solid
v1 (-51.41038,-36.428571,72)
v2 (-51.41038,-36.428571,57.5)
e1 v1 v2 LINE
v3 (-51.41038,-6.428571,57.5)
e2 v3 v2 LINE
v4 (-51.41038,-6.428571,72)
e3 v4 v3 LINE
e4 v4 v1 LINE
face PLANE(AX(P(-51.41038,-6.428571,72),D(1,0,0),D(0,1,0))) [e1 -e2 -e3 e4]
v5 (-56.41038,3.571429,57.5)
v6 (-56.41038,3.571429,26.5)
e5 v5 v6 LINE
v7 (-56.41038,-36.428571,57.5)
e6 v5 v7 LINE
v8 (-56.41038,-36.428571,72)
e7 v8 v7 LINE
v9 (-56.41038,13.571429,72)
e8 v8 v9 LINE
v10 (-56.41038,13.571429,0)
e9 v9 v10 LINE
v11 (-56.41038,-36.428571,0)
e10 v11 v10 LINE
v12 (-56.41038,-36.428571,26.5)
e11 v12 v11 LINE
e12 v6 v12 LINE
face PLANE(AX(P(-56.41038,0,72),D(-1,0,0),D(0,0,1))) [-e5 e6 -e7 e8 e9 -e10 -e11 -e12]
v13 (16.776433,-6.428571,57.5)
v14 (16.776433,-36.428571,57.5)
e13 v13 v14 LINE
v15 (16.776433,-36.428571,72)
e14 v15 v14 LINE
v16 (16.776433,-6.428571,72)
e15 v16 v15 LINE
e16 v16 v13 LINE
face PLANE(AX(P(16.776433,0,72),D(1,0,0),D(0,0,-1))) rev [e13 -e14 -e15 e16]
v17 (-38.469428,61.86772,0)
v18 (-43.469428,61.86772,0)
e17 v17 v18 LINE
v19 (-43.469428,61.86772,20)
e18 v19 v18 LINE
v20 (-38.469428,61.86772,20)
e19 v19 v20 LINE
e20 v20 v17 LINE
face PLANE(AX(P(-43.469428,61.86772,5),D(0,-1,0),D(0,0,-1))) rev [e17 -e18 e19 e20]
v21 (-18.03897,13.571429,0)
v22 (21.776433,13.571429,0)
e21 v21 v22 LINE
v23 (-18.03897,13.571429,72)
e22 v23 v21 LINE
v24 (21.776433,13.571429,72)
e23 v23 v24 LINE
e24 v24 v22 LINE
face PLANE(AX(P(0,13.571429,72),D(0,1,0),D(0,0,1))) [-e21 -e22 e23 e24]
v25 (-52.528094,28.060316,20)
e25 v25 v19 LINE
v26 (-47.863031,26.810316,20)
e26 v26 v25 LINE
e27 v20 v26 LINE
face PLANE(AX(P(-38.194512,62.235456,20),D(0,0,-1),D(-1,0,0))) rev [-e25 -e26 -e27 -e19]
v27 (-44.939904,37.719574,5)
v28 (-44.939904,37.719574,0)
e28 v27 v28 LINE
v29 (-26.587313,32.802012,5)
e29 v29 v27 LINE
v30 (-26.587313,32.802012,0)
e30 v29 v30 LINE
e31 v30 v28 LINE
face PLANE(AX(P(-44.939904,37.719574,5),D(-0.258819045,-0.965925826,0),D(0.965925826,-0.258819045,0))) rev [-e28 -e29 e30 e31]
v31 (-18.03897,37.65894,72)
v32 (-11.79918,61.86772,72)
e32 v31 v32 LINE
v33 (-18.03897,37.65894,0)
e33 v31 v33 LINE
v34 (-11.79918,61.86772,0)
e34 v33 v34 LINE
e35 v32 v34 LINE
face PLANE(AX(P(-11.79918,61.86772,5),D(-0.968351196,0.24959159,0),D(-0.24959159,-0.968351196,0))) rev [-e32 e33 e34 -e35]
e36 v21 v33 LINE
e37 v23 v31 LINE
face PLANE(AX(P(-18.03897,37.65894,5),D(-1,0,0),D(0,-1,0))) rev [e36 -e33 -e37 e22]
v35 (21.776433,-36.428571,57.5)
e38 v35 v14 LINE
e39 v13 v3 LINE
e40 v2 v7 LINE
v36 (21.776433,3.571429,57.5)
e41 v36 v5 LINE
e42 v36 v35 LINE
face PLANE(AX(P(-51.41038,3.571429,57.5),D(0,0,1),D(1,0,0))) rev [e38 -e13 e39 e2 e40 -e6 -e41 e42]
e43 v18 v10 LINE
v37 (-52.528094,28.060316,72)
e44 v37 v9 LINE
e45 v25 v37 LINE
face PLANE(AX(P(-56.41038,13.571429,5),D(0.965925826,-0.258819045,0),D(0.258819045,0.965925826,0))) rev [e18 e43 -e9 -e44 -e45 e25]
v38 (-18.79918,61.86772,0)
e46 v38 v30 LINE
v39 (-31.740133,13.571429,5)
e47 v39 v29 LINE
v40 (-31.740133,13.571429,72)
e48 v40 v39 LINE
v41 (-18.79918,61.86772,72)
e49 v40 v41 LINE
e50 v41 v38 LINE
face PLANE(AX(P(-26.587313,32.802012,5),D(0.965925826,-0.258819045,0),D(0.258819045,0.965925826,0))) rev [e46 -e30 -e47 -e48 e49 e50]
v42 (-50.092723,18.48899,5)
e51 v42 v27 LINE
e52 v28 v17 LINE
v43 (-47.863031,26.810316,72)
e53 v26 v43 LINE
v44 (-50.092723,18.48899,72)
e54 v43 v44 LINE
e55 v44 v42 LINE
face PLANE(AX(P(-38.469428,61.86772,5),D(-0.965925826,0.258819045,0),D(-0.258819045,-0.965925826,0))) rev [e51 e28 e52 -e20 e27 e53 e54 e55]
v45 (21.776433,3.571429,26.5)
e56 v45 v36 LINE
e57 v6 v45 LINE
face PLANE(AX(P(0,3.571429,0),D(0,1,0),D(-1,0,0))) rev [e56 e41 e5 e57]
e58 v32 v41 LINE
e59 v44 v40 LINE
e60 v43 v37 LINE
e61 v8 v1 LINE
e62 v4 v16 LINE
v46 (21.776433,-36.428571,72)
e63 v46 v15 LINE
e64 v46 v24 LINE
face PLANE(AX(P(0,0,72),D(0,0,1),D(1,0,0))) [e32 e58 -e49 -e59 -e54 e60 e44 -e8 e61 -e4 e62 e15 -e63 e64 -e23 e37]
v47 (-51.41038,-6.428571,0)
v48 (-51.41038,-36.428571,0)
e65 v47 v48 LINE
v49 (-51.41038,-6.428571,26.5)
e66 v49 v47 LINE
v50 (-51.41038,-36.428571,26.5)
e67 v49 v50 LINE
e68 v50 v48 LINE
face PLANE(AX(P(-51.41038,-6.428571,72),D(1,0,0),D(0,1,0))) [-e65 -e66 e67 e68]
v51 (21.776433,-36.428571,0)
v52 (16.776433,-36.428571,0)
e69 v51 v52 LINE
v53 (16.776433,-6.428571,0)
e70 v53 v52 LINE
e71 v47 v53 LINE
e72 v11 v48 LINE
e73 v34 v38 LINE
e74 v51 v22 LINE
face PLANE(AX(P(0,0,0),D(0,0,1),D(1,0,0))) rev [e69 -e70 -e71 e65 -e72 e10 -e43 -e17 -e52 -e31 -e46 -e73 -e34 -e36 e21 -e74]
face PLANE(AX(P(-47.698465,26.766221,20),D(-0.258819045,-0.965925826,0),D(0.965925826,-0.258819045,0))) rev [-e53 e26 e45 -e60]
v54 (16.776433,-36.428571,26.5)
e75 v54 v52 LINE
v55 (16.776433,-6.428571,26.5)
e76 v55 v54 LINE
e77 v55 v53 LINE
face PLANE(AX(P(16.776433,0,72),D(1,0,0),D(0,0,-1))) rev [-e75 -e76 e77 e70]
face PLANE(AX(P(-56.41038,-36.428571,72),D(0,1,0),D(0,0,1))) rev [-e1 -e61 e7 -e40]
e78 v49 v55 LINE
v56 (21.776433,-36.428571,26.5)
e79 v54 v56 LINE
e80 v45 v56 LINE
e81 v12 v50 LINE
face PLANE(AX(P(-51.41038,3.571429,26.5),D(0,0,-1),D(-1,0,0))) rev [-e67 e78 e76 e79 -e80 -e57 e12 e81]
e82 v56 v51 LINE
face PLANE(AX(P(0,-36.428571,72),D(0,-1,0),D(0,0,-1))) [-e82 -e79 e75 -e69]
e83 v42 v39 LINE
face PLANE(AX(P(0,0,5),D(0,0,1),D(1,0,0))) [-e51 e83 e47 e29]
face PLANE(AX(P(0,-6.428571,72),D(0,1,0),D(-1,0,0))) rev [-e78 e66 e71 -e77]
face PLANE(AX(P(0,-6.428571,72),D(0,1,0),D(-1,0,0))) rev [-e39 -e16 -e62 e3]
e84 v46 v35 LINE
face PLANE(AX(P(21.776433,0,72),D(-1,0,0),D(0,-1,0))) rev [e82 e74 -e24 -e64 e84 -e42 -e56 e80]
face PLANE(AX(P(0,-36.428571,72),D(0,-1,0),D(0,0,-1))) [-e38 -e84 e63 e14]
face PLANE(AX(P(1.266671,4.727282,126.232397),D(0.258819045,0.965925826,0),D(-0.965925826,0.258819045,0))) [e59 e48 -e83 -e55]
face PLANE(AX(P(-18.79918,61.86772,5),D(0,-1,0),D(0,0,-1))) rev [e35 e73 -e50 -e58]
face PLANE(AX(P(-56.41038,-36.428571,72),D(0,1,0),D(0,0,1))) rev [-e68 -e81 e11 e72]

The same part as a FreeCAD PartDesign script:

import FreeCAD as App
import Part
import Sketcher
from FreeCAD import Vector
Q = App.Units.Quantity

doc = App.newDocument("Part")
body = doc.addObject("PartDesign::Body", "Body")

# Sketch on XY plane
sketch1 = doc.addObject("Sketcher::SketchObject", "Sketch")
body.addObject(sketch1)
sketch1.AttachmentSupport = (doc.XY_Plane, [""])
sketch1.MapMode = "FlatFace"
sketch1.addGeometry(Part.LineSegment(Vector(-56, 14, 0), Vector(-56, -36, 0)), False)
sketch1.addGeometry(Part.LineSegment(Vector(-56, -36, 0), Vector(-51, -36, 0)), False)
sketch1.addGeometry(Part.LineSegment(Vector(-51, -36, 0), Vector(-51, -6, 0)), False)
sketch1.addGeometry(Part.LineSegment(Vector(-51, -6, 0), Vector(17, -6, 0)), False)
sketch1.addGeometry(Part.LineSegment(Vector(17, -6, 0), Vector(17, -36, 0)), False)
sketch1.addGeometry(Part.LineSegment(Vector(17, -36, 0), Vector(22, -36, 0)), False)
sketch1.addGeometry(Part.LineSegment(Vector(22, -36, 0), Vector(22, 14, 0)), False)
sketch1.addGeometry(Part.LineSegment(Vector(22, 14, 0), Vector(-56, 14, 0)), False)
sketch1.addConstraint(Sketcher.Constraint("Coincident", 0, 2, 1, 1))
sketch1.addConstraint(Sketcher.Constraint("Coincident", 1, 2, 2, 1))
sketch1.addConstraint(Sketcher.Constraint("Coincident", 2, 2, 3, 1))
sketch1.addConstraint(Sketcher.Constraint("Coincident", 3, 2, 4, 1))
sketch1.addConstraint(Sketcher.Constraint("Coincident", 4, 2, 5, 1))
sketch1.addConstraint(Sketcher.Constraint("Coincident", 5, 2, 6, 1))
sketch1.addConstraint(Sketcher.Constraint("Coincident", 6, 2, 7, 1))
sketch1.addConstraint(Sketcher.Constraint("Coincident", 7, 2, 0, 1))
sketch1.addConstraint(Sketcher.Constraint("Vertical", 0))
sketch1.addConstraint(Sketcher.Constraint("Horizontal", 1))
sketch1.addConstraint(Sketcher.Constraint("Vertical", 2))
sketch1.addConstraint(Sketcher.Constraint("Horizontal", 3))
sketch1.addConstraint(Sketcher.Constraint("Vertical", 4))
sketch1.addConstraint(Sketcher.Constraint("Horizontal", 5))
sketch1.addConstraint(Sketcher.Constraint("Vertical", 6))
sketch1.addConstraint(Sketcher.Constraint("Horizontal", 7))
sketch1.addConstraint(Sketcher.Constraint("Horizontal", 1, 2, 4, 2))
sketch1.addConstraint(Sketcher.Constraint("Equal", 1, 5))
sketch1.addConstraint(Sketcher.Constraint("DistanceX", 1, 1, 1, 2, Q("5 mm")))
sketch1.addConstraint(Sketcher.Constraint("DistanceY", 0, 2, 0, 1, Q("50 mm")))
sketch1.addConstraint(Sketcher.Constraint("DistanceY", 2, 1, 2, 2, Q("30 mm")))
sketch1.addConstraint(Sketcher.Constraint("DistanceX", 3, 1, 3, 2, Q("68.186813 mm")))
sketch1.addConstraint(Sketcher.Constraint("DistanceX", 0, 2, -1, 1, Q("56.41038 mm")))
sketch1.addConstraint(Sketcher.Constraint("DistanceY", 0, 2, -1, 1, Q("36.428571 mm")))
pad1 = doc.addObject("PartDesign::Pad", "Pad")
body.addObject(pad1)
pad1.Profile = sketch1
pad1.Length = 72

# Sketch on XZ plane
sketch2 = doc.addObject("Sketcher::SketchObject", "Sketch001")
body.addObject(sketch2)
sketch2.AttachmentSupport = (doc.XZ_Plane, [""])
sketch2.MapMode = "FlatFace"
sketch2.AttachmentOffset = App.Placement(Vector(0, 0, 6.428571), App.Rotation())
sketch2.addGeometry(Part.LineSegment(Vector(-51, 58, 0), Vector(-51, 26, 0)), False)
sketch2.addGeometry(Part.LineSegment(Vector(-51, 26, 0), Vector(17, 26, 0)), False)
sketch2.addGeometry(Part.LineSegment(Vector(17, 26, 0), Vector(17, 58, 0)), False)
sketch2.addGeometry(Part.LineSegment(Vector(17, 58, 0), Vector(-51, 58, 0)), False)
sketch2.addConstraint(Sketcher.Constraint("Coincident", 0, 2, 1, 1))
sketch2.addConstraint(Sketcher.Constraint("Coincident", 1, 2, 2, 1))
sketch2.addConstraint(Sketcher.Constraint("Coincident", 2, 2, 3, 1))
sketch2.addConstraint(Sketcher.Constraint("Coincident", 3, 2, 0, 1))
sketch2.addConstraint(Sketcher.Constraint("Vertical", 0))
sketch2.addConstraint(Sketcher.Constraint("Horizontal", 1))
sketch2.addConstraint(Sketcher.Constraint("Vertical", 2))
sketch2.addConstraint(Sketcher.Constraint("Horizontal", 3))
sketch2.addConstraint(Sketcher.Constraint("DistanceY", 0, 2, 0, 1, Q("31 mm")))
sketch2.addConstraint(Sketcher.Constraint("DistanceY", -1, 1, 0, 2, Q("26.5 mm")))
sketch2.addConstraint(Sketcher.Constraint("DistanceX", 1, 1, 1, 2, Q("68.186813 mm")))
sketch2.addConstraint(Sketcher.Constraint("DistanceX", 0, 2, -1, 1, Q("51.41038 mm")))
pocket1 = doc.addObject("PartDesign::Pocket", "Pocket")
body.addObject(pocket1)
pocket1.Profile = sketch2
pocket1.Length = 10

# Sketch on XZ plane
sketch3 = doc.addObject("Sketcher::SketchObject", "Sketch002")
body.addObject(sketch3)
sketch3.AttachmentSupport = (doc.XZ_Plane, [""])
sketch3.MapMode = "FlatFace"
sketch3.AttachmentOffset = App.Placement(Vector(0, 0, 36.428571), App.Rotation())
sketch3.addGeometry(Part.LineSegment(Vector(-56, 58, 0), Vector(-56, 26, 0)), False)
sketch3.addGeometry(Part.LineSegment(Vector(-56, 26, 0), Vector(-51, 26, 0)), False)
sketch3.addGeometry(Part.LineSegment(Vector(-51, 26, 0), Vector(-51, 58, 0)), False)
sketch3.addGeometry(Part.LineSegment(Vector(-51, 58, 0), Vector(-56, 58, 0)), False)
sketch3.addConstraint(Sketcher.Constraint("Coincident", 0, 2, 1, 1))
sketch3.addConstraint(Sketcher.Constraint("Coincident", 1, 2, 2, 1))
sketch3.addConstraint(Sketcher.Constraint("Coincident", 2, 2, 3, 1))
sketch3.addConstraint(Sketcher.Constraint("Coincident", 3, 2, 0, 1))
sketch3.addConstraint(Sketcher.Constraint("Vertical", 0))
sketch3.addConstraint(Sketcher.Constraint("Horizontal", 1))
sketch3.addConstraint(Sketcher.Constraint("Vertical", 2))
sketch3.addConstraint(Sketcher.Constraint("Horizontal", 3))
sketch3.addConstraint(Sketcher.Constraint("DistanceX", 1, 1, 1, 2, Q("5 mm")))
sketch3.addConstraint(Sketcher.Constraint("DistanceY", 0, 2, 0, 1, Q("31 mm")))
sketch3.addConstraint(Sketcher.Constraint("DistanceY", -1, 1, 0, 2, Q("26.5 mm")))
sketch3.addConstraint(Sketcher.Constraint("DistanceX", 0, 2, -1, 1, Q("56.41038 mm")))
pocket2 = doc.addObject("PartDesign::Pocket", "Pocket001")
body.addObject(pocket2)
pocket2.Profile = sketch3
pocket2.Length = 40

# Sketch on XZ plane
sketch4 = doc.addObject("Sketcher::SketchObject", "Sketch003")
body.addObject(sketch4)
sketch4.AttachmentSupport = (doc.XZ_Plane, [""])
sketch4.MapMode = "FlatFace"
sketch4.AttachmentOffset = App.Placement(Vector(0, 0, 36.428571), App.Rotation())
sketch4.addGeometry(Part.LineSegment(Vector(17, 58, 0), Vector(17, 26, 0)), False)
sketch4.addGeometry(Part.LineSegment(Vector(17, 26, 0), Vector(22, 26, 0)), False)
sketch4.addGeometry(Part.LineSegment(Vector(22, 26, 0), Vector(22, 58, 0)), False)
sketch4.addGeometry(Part.LineSegment(Vector(22, 58, 0), Vector(17, 58, 0)), False)
sketch4.addConstraint(Sketcher.Constraint("Coincident", 0, 2, 1, 1))
sketch4.addConstraint(Sketcher.Constraint("Coincident", 1, 2, 2, 1))
sketch4.addConstraint(Sketcher.Constraint("Coincident", 2, 2, 3, 1))
sketch4.addConstraint(Sketcher.Constraint("Coincident", 3, 2, 0, 1))
sketch4.addConstraint(Sketcher.Constraint("Vertical", 0))
sketch4.addConstraint(Sketcher.Constraint("Horizontal", 1))
sketch4.addConstraint(Sketcher.Constraint("Vertical", 2))
sketch4.addConstraint(Sketcher.Constraint("Horizontal", 3))
sketch4.addConstraint(Sketcher.Constraint("DistanceX", 1, 1, 1, 2, Q("5 mm")))
sketch4.addConstraint(Sketcher.Constraint("DistanceY", 0, 2, 0, 1, Q("31 mm")))
sketch4.addConstraint(Sketcher.Constraint("DistanceY", -1, 1, 0, 2, Q("26.5 mm")))
sketch4.addConstraint(Sketcher.Constraint("DistanceX", -1, 1, 0, 2, Q("16.776433 mm")))
pocket3 = doc.addObject("PartDesign::Pocket", "Pocket002")
body.addObject(pocket3)
pocket3.Profile = sketch4
pocket3.Length = 40

# Sketch on XY plane
sketch5 = doc.addObject("Sketcher::SketchObject", "Sketch004")
body.addObject(sketch5)
sketch5.AttachmentSupport = (doc.XY_Plane, [""])
sketch5.MapMode = "FlatFace"
sketch5.addGeometry(Part.LineSegment(Vector(-43, 62, 0), Vector(-56, 14, 0)), False)
sketch5.addGeometry(Part.LineSegment(Vector(-56, 14, 0), Vector(-18, 14, 0)), False)
sketch5.addGeometry(Part.LineSegment(Vector(-18, 14, 0), Vector(-18, 38, 0)), False)
sketch5.addGeometry(Part.LineSegment(Vector(-18, 38, 0), Vector(-12, 62, 0)), False)
sketch5.addGeometry(Part.LineSegment(Vector(-12, 62, 0), Vector(-19, 62, 0)), False)
sketch5.addGeometry(Part.LineSegment(Vector(-19, 62, 0), Vector(-27, 33, 0)), False)
sketch5.addGeometry(Part.LineSegment(Vector(-27, 33, 0), Vector(-45, 38, 0)), False)
sketch5.addGeometry(Part.LineSegment(Vector(-45, 38, 0), Vector(-38, 62, 0)), False)
sketch5.addGeometry(Part.LineSegment(Vector(-38, 62, 0), Vector(-43, 62, 0)), False)
sketch5.addConstraint(Sketcher.Constraint("Coincident", 0, 2, 1, 1))
sketch5.addConstraint(Sketcher.Constraint("Coincident", 1, 2, 2, 1))
sketch5.addConstraint(Sketcher.Constraint("Coincident", 2, 2, 3, 1))
sketch5.addConstraint(Sketcher.Constraint("Coincident", 3, 2, 4, 1))
sketch5.addConstraint(Sketcher.Constraint("Coincident", 4, 2, 5, 1))
sketch5.addConstraint(Sketcher.Constraint("Coincident", 5, 2, 6, 1))
sketch5.addConstraint(Sketcher.Constraint("Coincident", 6, 2, 7, 1))
sketch5.addConstraint(Sketcher.Constraint("Coincident", 7, 2, 8, 1))
sketch5.addConstraint(Sketcher.Constraint("Coincident", 8, 2, 0, 1))
sketch5.addConstraint(Sketcher.Constraint("Horizontal", 1))
sketch5.addConstraint(Sketcher.Constraint("Vertical", 2))
sketch5.addConstraint(Sketcher.Constraint("Horizontal", 4))
sketch5.addConstraint(Sketcher.Constraint("Horizontal", 8))
sketch5.addConstraint(Sketcher.Constraint("Parallel", 0, 5))
sketch5.addConstraint(Sketcher.Constraint("Perpendicular", 5, 6))
sketch5.addConstraint(Sketcher.Constraint("Perpendicular", 6, 7))
sketch5.addConstraint(Sketcher.Constraint("Horizontal", 4, 2, 7, 2))
sketch5.addConstraint(Sketcher.Constraint("Equal", 3, 7))
sketch5.addConstraint(Sketcher.Constraint("DistanceX", 4, 2, 4, 1, Q("7 mm")))
sketch5.addConstraint(Sketcher.Constraint("DistanceX", 8, 2, 8, 1, Q("5 mm")))
sketch5.addConstraint(Sketcher.Constraint("Angle", 0, Q("-105 deg")))
sketch5.addConstraint(Sketcher.Constraint("Distance", 0, Q("50 mm")))
sketch5.addConstraint(Sketcher.Constraint("Distance", 3, Q("25 mm")))
sketch5.addConstraint(Sketcher.Constraint("Distance", 6, Q("19 mm")))
sketch5.addConstraint(Sketcher.Constraint("DistanceX", 1, 1, 1, 2, Q("38.37141 mm")))
sketch5.addConstraint(Sketcher.Constraint("DistanceX", 0, 2, -1, 1, Q("56.41038 mm")))
sketch5.addConstraint(Sketcher.Constraint("DistanceY", -1, 1, 0, 2, Q("13.571429 mm")))
pad2 = doc.addObject("PartDesign::Pad", "Pad001")
body.addObject(pad2)
pad2.Profile = sketch5
pad2.Length = 5

# Sketch on XY plane
sketch6 = doc.addObject("Sketcher::SketchObject", "Sketch005")
body.addObject(sketch6)
sketch6.AttachmentSupport = (doc.XY_Plane, [""])
sketch6.MapMode = "FlatFace"
sketch6.AttachmentOffset = App.Placement(Vector(0, 0, 5), App.Rotation())
sketch6.addGeometry(Part.LineSegment(Vector(-43, 62, 0), Vector(-56, 14, 0)), False)
sketch6.addGeometry(Part.LineSegment(Vector(-56, 14, 0), Vector(-32, 14, 0)), False)
sketch6.addGeometry(Part.LineSegment(Vector(-32, 14, 0), Vector(-50, 18, 0)), False)
sketch6.addGeometry(Part.LineSegment(Vector(-50, 18, 0), Vector(-45, 38, 0)), False)
sketch6.addGeometry(Part.LineSegment(Vector(-45, 38, 0), Vector(-38, 62, 0)), False)
sketch6.addGeometry(Part.LineSegment(Vector(-38, 62, 0), Vector(-43, 62, 0)), False)
sketch6.addGeometry(Part.LineSegment(Vector(-27, 33, 0), Vector(-32, 14, 0)), False)
sketch6.addGeometry(Part.LineSegment(Vector(-32, 14, 0), Vector(-18, 14, 0)), False)
sketch6.addGeometry(Part.LineSegment(Vector(-18, 14, 0), Vector(-18, 38, 0)), False)
sketch6.addGeometry(Part.LineSegment(Vector(-18, 38, 0), Vector(-12, 62, 0)), False)
sketch6.addGeometry(Part.LineSegment(Vector(-12, 62, 0), Vector(-19, 62, 0)), False)
sketch6.addGeometry(Part.LineSegment(Vector(-19, 62, 0), Vector(-27, 33, 0)), False)
sketch6.addConstraint(Sketcher.Constraint("Coincident", 0, 2, 1, 1))
sketch6.addConstraint(Sketcher.Constraint("Coincident", 1, 2, 2, 1))
sketch6.addConstraint(Sketcher.Constraint("Coincident", 2, 2, 3, 1))
sketch6.addConstraint(Sketcher.Constraint("Coincident", 3, 2, 4, 1))
sketch6.addConstraint(Sketcher.Constraint("Coincident", 4, 2, 5, 1))
sketch6.addConstraint(Sketcher.Constraint("Coincident", 5, 2, 0, 1))
sketch6.addConstraint(Sketcher.Constraint("Coincident", 6, 2, 7, 1))
sketch6.addConstraint(Sketcher.Constraint("Coincident", 7, 2, 8, 1))
sketch6.addConstraint(Sketcher.Constraint("Coincident", 8, 2, 9, 1))
sketch6.addConstraint(Sketcher.Constraint("Coincident", 9, 2, 10, 1))
sketch6.addConstraint(Sketcher.Constraint("Coincident", 10, 2, 11, 1))
sketch6.addConstraint(Sketcher.Constraint("Coincident", 11, 2, 6, 1))
sketch6.addConstraint(Sketcher.Constraint("Horizontal", 1))
sketch6.addConstraint(Sketcher.Constraint("Horizontal", 5))
sketch6.addConstraint(Sketcher.Constraint("Horizontal", 7))
sketch6.addConstraint(Sketcher.Constraint("Vertical", 8))
sketch6.addConstraint(Sketcher.Constraint("Horizontal", 10))
sketch6.addConstraint(Sketcher.Constraint("Coincident", 6, 2, 1, 2))
sketch6.addConstraint(Sketcher.Constraint("Perpendicular", 0, 2))
sketch6.addConstraint(Sketcher.Constraint("Perpendicular", 2, 3))
sketch6.addConstraint(Sketcher.Constraint("Parallel", 3, 4))
sketch6.addConstraint(Sketcher.Constraint("Parallel", 4, 6))
sketch6.addConstraint(Sketcher.Constraint("Parallel", 6, 11))
sketch6.addConstraint(Sketcher.Constraint("Horizontal", 5, 2, 9, 2))
sketch6.addConstraint(Sketcher.Constraint("Equal", 3, 6))
sketch6.addConstraint(Sketcher.Constraint("Equal", 4, 9))
sketch6.addConstraint(Sketcher.Constraint("DistanceX", 5, 2, 5, 1, Q("5 mm")))
sketch6.addConstraint(Sketcher.Constraint("DistanceX", 10, 2, 10, 1, Q("7 mm")))
sketch6.addConstraint(Sketcher.Constraint("Angle", 0, Q("-105 deg")))
sketch6.addConstraint(Sketcher.Constraint("Distance", 0, Q("50 mm")))
sketch6.addConstraint(Sketcher.Constraint("Distance", 2, Q("19 mm")))
sketch6.addConstraint(Sketcher.Constraint("Distance", 4, Q("25 mm")))
sketch6.addConstraint(Sketcher.Constraint("DistanceY", 8, 1, 8, 2, Q("24.087511 mm")))
sketch6.addConstraint(Sketcher.Constraint("DistanceX", 0, 2, -1, 1, Q("56.41038 mm")))
sketch6.addConstraint(Sketcher.Constraint("DistanceY", -1, 1, 0, 2, Q("13.571429 mm")))
pad3 = doc.addObject("PartDesign::Pad", "Pad002")
body.addObject(pad3)
pad3.Profile = sketch6
pad3.Length = 67

# Sketch on an angled plane
sketch7 = doc.addObject("Sketcher::SketchObject", "Sketch006")
body.addObject(sketch7)
sketch7.Placement = App.Placement(Vector(-56.024458, 15.011708, 0), App.Rotation(Vector(0, 0, 1), Vector(0.258819045, 0.965925826, 0), Vector(-0.965925826, 0.258819045, 0), "ZXY"))
sketch7.addGeometry(Part.LineSegment(Vector(20, 50, 0), Vector(20, 14, 0)), False)
sketch7.addGeometry(Part.LineSegment(Vector(20, 14, 0), Vector(72, 14, 0)), False)
sketch7.addGeometry(Part.LineSegment(Vector(72, 14, 0), Vector(72, 50, 0)), False)
sketch7.addGeometry(Part.LineSegment(Vector(72, 50, 0), Vector(20, 50, 0)), False)
sketch7.addConstraint(Sketcher.Constraint("Coincident", 0, 2, 1, 1))
sketch7.addConstraint(Sketcher.Constraint("Coincident", 1, 2, 2, 1))
sketch7.addConstraint(Sketcher.Constraint("Coincident", 2, 2, 3, 1))
sketch7.addConstraint(Sketcher.Constraint("Coincident", 3, 2, 0, 1))
sketch7.addConstraint(Sketcher.Constraint("Vertical", 0))
sketch7.addConstraint(Sketcher.Constraint("Horizontal", 1))
sketch7.addConstraint(Sketcher.Constraint("Vertical", 2))
sketch7.addConstraint(Sketcher.Constraint("Horizontal", 3))
sketch7.addConstraint(Sketcher.Constraint("DistanceX", 1, 1, 1, 2, Q("52 mm")))
sketch7.addConstraint(Sketcher.Constraint("DistanceX", -1, 1, 0, 2, Q("20 mm")))
sketch7.addConstraint(Sketcher.Constraint("DistanceY", 0, 2, 0, 1, Q("36.720454 mm")))
sketch7.addConstraint(Sketcher.Constraint("DistanceY", -1, 1, 0, 2, Q("13.508913 mm")))
pocket4 = doc.addObject("PartDesign::Pocket", "Pocket003")
body.addObject(pocket4)
pocket4.Profile = sketch7
pocket4.Length = 5

doc.recompute()
